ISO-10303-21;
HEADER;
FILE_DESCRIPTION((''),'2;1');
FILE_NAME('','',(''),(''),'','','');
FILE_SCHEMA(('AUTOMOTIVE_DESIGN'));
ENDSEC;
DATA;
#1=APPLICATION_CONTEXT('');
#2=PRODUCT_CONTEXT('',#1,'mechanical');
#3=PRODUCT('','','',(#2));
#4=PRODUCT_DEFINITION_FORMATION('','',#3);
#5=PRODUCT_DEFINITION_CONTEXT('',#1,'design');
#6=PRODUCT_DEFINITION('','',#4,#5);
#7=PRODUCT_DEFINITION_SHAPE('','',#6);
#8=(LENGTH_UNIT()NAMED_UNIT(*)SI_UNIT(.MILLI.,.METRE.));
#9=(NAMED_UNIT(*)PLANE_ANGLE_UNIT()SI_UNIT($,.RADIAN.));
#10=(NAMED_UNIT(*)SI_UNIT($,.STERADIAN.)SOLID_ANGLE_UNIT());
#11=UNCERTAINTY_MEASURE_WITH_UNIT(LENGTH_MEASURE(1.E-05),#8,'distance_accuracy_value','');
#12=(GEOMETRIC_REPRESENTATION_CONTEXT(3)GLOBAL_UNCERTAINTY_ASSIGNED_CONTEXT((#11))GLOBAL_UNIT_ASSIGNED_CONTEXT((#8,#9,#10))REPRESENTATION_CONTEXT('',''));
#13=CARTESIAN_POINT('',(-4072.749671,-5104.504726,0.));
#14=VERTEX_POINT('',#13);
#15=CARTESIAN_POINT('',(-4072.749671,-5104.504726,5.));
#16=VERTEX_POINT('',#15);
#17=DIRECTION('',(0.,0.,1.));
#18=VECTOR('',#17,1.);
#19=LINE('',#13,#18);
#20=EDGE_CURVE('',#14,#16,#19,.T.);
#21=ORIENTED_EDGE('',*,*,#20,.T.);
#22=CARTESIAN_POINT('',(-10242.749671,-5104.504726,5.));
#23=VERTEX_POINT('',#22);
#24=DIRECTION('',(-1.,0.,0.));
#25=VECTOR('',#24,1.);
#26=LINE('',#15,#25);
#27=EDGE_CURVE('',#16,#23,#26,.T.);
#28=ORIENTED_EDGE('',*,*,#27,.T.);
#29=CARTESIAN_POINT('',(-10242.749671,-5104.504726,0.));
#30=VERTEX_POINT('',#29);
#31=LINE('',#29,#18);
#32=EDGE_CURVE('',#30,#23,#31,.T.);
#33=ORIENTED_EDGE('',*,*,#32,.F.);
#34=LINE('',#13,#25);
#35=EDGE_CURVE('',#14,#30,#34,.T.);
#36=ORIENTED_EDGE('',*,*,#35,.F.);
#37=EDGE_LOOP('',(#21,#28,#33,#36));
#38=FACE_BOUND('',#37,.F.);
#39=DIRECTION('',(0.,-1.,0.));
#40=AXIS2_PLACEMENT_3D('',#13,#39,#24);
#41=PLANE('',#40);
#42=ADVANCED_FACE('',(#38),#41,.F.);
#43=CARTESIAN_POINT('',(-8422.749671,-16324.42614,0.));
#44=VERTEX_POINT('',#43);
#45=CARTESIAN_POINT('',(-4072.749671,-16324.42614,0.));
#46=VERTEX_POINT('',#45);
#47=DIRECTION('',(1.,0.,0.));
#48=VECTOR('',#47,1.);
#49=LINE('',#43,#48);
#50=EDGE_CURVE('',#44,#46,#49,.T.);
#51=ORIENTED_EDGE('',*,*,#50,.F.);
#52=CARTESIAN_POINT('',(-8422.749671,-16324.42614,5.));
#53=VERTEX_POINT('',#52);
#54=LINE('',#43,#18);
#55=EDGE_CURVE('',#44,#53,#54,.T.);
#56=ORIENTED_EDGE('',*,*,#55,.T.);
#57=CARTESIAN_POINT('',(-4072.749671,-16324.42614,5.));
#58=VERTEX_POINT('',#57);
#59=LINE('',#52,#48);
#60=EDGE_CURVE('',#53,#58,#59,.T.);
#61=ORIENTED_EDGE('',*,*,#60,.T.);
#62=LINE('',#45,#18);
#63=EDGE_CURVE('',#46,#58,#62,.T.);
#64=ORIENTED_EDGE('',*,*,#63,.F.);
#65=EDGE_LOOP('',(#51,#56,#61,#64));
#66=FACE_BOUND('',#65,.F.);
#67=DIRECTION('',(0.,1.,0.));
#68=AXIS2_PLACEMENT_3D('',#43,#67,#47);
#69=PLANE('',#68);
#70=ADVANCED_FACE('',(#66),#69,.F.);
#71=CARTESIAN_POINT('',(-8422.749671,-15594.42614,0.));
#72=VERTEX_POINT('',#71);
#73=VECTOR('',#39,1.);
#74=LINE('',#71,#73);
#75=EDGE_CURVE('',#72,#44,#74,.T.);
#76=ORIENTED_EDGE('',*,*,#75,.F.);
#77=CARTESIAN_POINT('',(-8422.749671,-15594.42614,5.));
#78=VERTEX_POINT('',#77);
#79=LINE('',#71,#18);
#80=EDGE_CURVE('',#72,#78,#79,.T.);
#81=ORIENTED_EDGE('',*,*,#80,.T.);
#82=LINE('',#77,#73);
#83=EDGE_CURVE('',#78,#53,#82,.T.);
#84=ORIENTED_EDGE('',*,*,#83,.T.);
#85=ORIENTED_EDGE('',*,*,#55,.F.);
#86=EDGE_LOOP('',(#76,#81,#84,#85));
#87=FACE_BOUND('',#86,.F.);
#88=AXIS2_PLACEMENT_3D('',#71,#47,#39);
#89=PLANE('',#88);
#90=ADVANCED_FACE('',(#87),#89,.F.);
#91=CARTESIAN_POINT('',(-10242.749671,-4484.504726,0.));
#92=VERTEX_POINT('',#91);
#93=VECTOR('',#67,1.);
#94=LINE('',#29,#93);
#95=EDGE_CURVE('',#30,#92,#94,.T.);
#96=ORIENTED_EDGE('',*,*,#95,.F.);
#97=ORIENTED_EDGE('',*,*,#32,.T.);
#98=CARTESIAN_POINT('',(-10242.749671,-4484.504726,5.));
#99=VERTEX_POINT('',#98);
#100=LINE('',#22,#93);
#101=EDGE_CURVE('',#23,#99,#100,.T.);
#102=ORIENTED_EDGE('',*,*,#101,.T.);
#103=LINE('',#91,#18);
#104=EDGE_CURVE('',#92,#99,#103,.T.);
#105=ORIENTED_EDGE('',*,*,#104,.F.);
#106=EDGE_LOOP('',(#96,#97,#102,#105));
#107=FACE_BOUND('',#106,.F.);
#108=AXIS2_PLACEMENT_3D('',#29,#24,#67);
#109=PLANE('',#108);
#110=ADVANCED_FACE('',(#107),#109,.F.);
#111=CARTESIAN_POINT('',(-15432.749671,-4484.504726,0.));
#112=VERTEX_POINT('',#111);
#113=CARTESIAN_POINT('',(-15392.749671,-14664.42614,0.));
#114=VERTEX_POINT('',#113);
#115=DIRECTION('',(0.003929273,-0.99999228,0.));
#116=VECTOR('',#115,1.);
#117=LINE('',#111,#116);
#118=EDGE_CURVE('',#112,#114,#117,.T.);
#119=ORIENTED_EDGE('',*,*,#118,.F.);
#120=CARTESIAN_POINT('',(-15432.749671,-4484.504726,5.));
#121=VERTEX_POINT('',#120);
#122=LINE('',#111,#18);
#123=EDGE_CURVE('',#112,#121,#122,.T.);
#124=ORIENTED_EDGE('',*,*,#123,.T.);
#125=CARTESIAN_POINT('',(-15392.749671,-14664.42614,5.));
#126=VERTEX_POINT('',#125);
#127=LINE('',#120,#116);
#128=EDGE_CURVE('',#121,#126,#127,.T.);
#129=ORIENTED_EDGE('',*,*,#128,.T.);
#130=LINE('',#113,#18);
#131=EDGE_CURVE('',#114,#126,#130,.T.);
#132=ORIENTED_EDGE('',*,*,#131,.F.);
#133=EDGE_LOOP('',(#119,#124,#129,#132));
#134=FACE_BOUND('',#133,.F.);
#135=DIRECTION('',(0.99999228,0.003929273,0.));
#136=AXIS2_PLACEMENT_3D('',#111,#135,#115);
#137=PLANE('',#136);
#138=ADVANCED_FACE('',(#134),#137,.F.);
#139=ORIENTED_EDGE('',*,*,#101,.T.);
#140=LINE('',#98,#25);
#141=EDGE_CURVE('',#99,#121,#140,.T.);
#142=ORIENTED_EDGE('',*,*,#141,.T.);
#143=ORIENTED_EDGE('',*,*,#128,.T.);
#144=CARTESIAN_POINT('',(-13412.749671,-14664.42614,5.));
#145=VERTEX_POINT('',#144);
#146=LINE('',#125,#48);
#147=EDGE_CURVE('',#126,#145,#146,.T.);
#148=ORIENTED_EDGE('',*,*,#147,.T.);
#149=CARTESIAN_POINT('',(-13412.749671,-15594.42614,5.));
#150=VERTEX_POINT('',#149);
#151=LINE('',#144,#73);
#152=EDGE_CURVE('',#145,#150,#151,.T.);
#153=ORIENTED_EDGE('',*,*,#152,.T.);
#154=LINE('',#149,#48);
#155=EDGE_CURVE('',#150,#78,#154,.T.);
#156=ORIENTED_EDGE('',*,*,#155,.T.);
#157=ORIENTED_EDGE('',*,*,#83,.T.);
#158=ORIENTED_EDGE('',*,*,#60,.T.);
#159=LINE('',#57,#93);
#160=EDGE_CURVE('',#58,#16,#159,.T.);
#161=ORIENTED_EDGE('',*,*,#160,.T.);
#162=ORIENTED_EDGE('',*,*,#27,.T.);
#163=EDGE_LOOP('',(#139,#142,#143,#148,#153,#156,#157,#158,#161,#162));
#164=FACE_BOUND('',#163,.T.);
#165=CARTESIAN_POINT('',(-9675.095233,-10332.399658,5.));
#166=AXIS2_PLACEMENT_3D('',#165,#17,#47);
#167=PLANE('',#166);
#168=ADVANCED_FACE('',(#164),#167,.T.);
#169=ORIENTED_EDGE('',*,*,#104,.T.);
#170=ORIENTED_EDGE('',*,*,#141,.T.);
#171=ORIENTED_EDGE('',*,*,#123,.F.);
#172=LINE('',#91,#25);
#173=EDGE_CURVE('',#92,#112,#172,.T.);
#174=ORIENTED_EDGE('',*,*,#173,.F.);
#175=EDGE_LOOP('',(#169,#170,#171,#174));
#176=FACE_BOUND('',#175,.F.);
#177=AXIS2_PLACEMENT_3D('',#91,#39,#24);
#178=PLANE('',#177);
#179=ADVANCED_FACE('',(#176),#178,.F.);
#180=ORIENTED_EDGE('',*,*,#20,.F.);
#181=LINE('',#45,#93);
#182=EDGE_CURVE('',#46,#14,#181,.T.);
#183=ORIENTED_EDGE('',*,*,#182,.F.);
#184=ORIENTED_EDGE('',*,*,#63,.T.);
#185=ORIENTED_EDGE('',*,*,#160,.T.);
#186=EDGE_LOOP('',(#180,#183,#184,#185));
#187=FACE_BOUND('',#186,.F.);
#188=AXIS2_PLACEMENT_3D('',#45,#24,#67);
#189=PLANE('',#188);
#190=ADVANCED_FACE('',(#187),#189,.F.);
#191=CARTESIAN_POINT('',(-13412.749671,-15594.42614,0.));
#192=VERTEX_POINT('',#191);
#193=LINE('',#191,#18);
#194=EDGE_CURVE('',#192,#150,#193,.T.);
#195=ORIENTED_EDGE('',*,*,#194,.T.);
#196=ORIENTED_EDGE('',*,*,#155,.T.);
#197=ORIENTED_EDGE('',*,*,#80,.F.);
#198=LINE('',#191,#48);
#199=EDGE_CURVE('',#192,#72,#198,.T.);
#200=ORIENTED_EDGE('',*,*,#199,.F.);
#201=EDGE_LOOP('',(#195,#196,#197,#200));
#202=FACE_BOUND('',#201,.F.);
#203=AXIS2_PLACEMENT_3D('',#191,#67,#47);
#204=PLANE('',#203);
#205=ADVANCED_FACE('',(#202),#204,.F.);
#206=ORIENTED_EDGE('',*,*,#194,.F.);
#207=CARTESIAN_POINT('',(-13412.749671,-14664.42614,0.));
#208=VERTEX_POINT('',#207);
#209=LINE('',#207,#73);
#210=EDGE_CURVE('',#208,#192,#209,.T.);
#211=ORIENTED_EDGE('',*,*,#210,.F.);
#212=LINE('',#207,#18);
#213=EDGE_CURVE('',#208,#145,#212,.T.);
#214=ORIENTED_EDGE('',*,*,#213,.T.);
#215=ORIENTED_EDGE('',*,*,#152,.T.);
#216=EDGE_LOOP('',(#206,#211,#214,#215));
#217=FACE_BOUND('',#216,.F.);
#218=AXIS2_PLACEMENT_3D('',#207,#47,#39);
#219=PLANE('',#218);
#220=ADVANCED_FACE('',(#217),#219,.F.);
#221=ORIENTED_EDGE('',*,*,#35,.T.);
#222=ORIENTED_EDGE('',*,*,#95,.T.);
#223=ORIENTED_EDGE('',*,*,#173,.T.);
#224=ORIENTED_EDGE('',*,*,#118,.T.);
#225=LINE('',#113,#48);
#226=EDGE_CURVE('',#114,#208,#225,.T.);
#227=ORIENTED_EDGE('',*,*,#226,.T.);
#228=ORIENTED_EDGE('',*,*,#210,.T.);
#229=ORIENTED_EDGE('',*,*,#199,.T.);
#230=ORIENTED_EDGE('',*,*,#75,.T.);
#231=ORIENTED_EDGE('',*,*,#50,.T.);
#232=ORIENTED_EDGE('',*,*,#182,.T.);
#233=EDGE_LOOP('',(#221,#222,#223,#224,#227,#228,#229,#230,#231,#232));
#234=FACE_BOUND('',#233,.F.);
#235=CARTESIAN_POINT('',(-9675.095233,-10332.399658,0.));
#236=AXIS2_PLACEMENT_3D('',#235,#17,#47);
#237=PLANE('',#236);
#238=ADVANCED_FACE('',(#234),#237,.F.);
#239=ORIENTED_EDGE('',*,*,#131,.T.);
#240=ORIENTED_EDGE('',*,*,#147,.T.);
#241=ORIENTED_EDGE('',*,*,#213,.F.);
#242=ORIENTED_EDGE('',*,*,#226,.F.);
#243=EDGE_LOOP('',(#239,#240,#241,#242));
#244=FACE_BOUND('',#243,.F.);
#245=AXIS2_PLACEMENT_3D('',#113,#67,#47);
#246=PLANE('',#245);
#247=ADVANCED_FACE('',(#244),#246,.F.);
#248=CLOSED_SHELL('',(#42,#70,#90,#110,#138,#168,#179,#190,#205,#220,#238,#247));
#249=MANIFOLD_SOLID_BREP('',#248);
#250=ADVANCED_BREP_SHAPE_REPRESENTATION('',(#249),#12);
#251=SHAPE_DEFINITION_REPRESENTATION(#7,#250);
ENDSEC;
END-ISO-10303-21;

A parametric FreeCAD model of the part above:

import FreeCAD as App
import Part
import Sketcher

doc = App.newDocument("Part")
params = doc.addObject("Spreadsheet::Sheet", "Params")
for row, (alias, value) in enumerate([
    ("sketch1_width", "1980 mm"),
    ("sketch1_width2", "4990 mm"),
    ("sketch1_width3", "4350 mm"),
    ("sketch1_width4", "6170 mm"),
    ("sketch1_width5", "5190 mm"),
    ("pad1_length", "5 mm"),
], start=1):
    params.set(f"A{row}", alias)
    params.set(f"B{row}", "=" + value)
    params.setAlias(f"B{row}", alias)

body = doc.addObject("PartDesign::Body", "Body")

# Sketch on XY plane
sketch1 = body.newObject("Sketcher::SketchObject", "Sketch")
sketch1.AttachmentSupport = (doc.getObject("XY_Plane"), [""])
sketch1.MapMode = "FlatFace"
sketch1.addGeometry([
    Part.LineSegment(App.Vector(-15433, -4485, 0), App.Vector(-15393, -14664, 0)),  # 0
    Part.LineSegment(App.Vector(-15393, -14664, 0), App.Vector(-13413, -14664, 0)),  # 1
    Part.LineSegment(App.Vector(-13413, -14664, 0), App.Vector(-13413, -15594, 0)),  # 2
    Part.LineSegment(App.Vector(-13413, -15594, 0), App.Vector(-8423, -15594, 0)),  # 3
    Part.LineSegment(App.Vector(-8423, -15594, 0), App.Vector(-8423, -16324, 0)),  # 4
    Part.LineSegment(App.Vector(-8423, -16324, 0), App.Vector(-4073, -16324, 0)),  # 5
    Part.LineSegment(App.Vector(-4073, -16324, 0), App.Vector(-4073, -5105, 0)),  # 6
    Part.LineSegment(App.Vector(-4073, -5105, 0), App.Vector(-10243, -5105, 0)),  # 7
    Part.LineSegment(App.Vector(-10243, -5105, 0), App.Vector(-10243, -4485, 0)),  # 8
    Part.LineSegment(App.Vector(-10243, -4485, 0), App.Vector(-15433, -4485, 0)),  # 9
], False)
sketch1.addConstraint([
    Sketcher.Constraint("Coincident", 0, 2, 1, 1),
    Sketcher.Constraint("Coincident", 1, 2, 2, 1),
    Sketcher.Constraint("Coincident", 2, 2, 3, 1),
    Sketcher.Constraint("Coincident", 3, 2, 4, 1),
    Sketcher.Constraint("Coincident", 4, 2, 5, 1),
    Sketcher.Constraint("Coincident", 5, 2, 6, 1),
    Sketcher.Constraint("Coincident", 6, 2, 7, 1),
    Sketcher.Constraint("Coincident", 7, 2, 8, 1),
    Sketcher.Constraint("Coincident", 8, 2, 9, 1),
    Sketcher.Constraint("Coincident", 9, 2, 0, 1),
    Sketcher.Constraint("Horizontal", 1),
    Sketcher.Constraint("Vertical", 2),
    Sketcher.Constraint("Horizontal", 3),
    Sketcher.Constraint("Vertical", 4),
    Sketcher.Constraint("Horizontal", 5),
    Sketcher.Constraint("Vertical", 6),
    Sketcher.Constraint("Horizontal", 7),
    Sketcher.Constraint("Vertical", 8),
    Sketcher.Constraint("Horizontal", 9),
    Sketcher.Constraint("DistanceX", 1, 1, 1, 2, 1980.0),
    Sketcher.Constraint("DistanceX", 3, 1, 3, 2, 4990.0),
    Sketcher.Constraint("DistanceX", 5, 1, 5, 2, 4350.0),
    Sketcher.Constraint("DistanceX", 7, 2, 7, 1, 6170.0),
    Sketcher.Constraint("DistanceX", 9, 2, 9, 1, 5190.0),
    Sketcher.Constraint("DistanceY", 2, 2, 2, 1, 930.0),
    Sketcher.Constraint("DistanceY", 4, 2, 4, 1, 730.0),
    Sketcher.Constraint("DistanceY", 8, 1, 8, 2, 620.0),
    Sketcher.Constraint("Distance", 0, 10180.0),
    Sketcher.Constraint("DistanceX", 0, 2, -1, 1, 15392.749671),
    Sketcher.Constraint("DistanceY", 0, 2, -1, 1, 14664.42614),
])
sketch1.setExpression("Constraints[19]", "Params.sketch1_width")
sketch1.setExpression("Constraints[20]", "Params.sketch1_width2")
sketch1.setExpression("Constraints[21]", "Params.sketch1_width3")
sketch1.setExpression("Constraints[22]", "Params.sketch1_width4")
sketch1.setExpression("Constraints[23]", "Params.sketch1_width5")
pad1 = body.newObject("PartDesign::Pad", "Pad")
pad1.Profile = sketch1
pad1.setExpression("Length", "Params.pad1_length")

doc.recompute()
